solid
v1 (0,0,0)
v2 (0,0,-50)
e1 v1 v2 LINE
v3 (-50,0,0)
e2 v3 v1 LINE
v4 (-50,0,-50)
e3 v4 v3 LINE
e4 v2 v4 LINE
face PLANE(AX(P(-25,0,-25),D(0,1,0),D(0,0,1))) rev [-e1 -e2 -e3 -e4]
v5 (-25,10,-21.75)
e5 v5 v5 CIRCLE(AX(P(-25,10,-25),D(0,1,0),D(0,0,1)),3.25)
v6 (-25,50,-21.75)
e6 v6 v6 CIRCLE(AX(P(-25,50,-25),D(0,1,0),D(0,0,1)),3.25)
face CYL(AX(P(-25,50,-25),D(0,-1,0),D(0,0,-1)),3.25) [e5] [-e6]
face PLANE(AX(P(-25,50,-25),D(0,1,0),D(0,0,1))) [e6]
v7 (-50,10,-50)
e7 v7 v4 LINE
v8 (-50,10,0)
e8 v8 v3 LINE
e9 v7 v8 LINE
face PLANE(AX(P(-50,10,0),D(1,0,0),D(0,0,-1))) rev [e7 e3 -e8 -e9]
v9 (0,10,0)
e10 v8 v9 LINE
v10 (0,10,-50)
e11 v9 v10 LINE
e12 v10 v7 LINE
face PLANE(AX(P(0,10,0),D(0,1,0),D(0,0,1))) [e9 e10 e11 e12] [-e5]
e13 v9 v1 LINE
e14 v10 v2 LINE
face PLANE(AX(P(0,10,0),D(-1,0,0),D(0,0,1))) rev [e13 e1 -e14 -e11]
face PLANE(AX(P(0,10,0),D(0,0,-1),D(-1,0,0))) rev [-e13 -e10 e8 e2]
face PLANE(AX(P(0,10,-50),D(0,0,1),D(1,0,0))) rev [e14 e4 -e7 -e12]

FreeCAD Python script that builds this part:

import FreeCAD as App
import Part
import Sketcher

doc = App.newDocument("Part")
body = doc.addObject("PartDesign::Body", "Body")

# Sketch on XZ plane
sketch1 = body.newObject("Sketcher::SketchObject", "Sketch")
sketch1.AttachmentSupport = (doc.getObject("XZ_Plane"), [""])
sketch1.MapMode = "FlatFace"
sketch1.addGeometry(Part.Circle(App.Vector(-25, -25, 0), App.Vector(0, 0, 1), 3.2), False)
sketch1.addConstraint(Sketcher.Constraint("Diameter", 0, 6.5))
sketch1.addConstraint(Sketcher.Constraint("DistanceX", 0, 3, -1, 1, 25.0))
sketch1.addConstraint(Sketcher.Constraint("DistanceY", 0, 3, -1, 1, 25.0))
pad1 = body.newObject("PartDesign::Pad", "Pad")
pad1.Profile = sketch1
pad1.Length = 50
pad1.Reversed = True

# Sketch on XZ plane
sketch2 = body.newObject("Sketcher::SketchObject", "Sketch001")
sketch2.AttachmentSupport = (doc.getObject("XZ_Plane"), [""])
sketch2.MapMode = "FlatFace"
sketch2.addGeometry(Part.LineSegment(App.Vector(-50, -50, 0), App.Vector(-50, 0, 0)), False)
sketch2.addGeometry(Part.LineSegment(App.Vector(-50, 0, 0), App.Vector(0, 0, 0)), False)
sketch2.addGeometry(Part.LineSegment(App.Vector(0, 0, 0), App.Vector(0, -50, 0)), False)
sketch2.addGeometry(Part.LineSegment(App.Vector(0, -50, 0), App.Vector(-50, -50, 0)), False)
sketch2.addGeometry(Part.Circle(App.Vector(-25, -25, 0), App.Vector(0, 0, 1), 3.2), False)
sketch2.addConstraint(Sketcher.Constraint("Coincident", 0, 2, 1, 1))
sketch2.addConstraint(Sketcher.Constraint("Coincident", 1, 2, 2, 1))
sketch2.addConstraint(Sketcher.Constraint("Coincident", 2, 2, 3, 1))
sketch2.addConstraint(Sketcher.Constraint("Coincident", 3, 2, 0, 1))
sketch2.addConstraint(Sketcher.Constraint("Vertical", 0))
sketch2.addConstraint(Sketcher.Constraint("Horizontal", 1))
sketch2.addConstraint(Sketcher.Constraint("Vertical", 2))
sketch2.addConstraint(Sketcher.Constraint("Horizontal", 3))
sketch2.addConstraint(Sketcher.Constraint("Coincident", 1, 2, -1, 1))
sketch2.addConstraint(Sketcher.Constraint("Equal", 3, 0))
sketch2.addConstraint(Sketcher.Constraint("Diameter", 4, 6.5))
sketch2.addConstraint(Sketcher.Constraint("DistanceX", 1, 1, 1, 2, 50.0))
sketch2.addConstraint(Sketcher.Constraint("DistanceX", 4, 3, -1, 1, 25.0))
sketch2.addConstraint(Sketcher.Constraint("DistanceY", 4, 3, -1, 1, 25.0))
pad2 = body.newObject("PartDesign::Pad", "Pad001")
pad2.Profile = sketch2
pad2.Length = 10
pad2.Reversed = True

doc.recompute()
